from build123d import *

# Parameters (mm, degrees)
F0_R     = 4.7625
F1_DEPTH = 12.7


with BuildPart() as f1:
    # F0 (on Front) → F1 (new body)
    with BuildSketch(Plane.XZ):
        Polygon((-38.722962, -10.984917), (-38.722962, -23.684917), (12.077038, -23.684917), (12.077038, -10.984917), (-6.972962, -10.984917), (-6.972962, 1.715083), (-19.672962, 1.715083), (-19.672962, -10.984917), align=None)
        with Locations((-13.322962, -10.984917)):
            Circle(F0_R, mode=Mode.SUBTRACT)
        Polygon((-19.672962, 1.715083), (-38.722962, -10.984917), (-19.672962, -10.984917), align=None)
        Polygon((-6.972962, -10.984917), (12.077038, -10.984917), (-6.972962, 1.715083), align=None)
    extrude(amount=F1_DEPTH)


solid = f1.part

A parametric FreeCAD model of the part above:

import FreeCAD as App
import Part
import Sketcher
from FreeCAD import Vector
Q = App.Units.Quantity


def add_polygon(sketch, points):
    """Adds a closed chain of lines whose ends are joined by coincident constraints."""
    first, n = sketch.GeometryCount, len(points)
    for a, b in zip(points, points[1:] + points[:1]):
        sketch.addGeometry(Part.LineSegment(App.Vector(*a, 0), App.Vector(*b, 0)), False)
    for i in range(n):
        sketch.addConstraint(Sketcher.Constraint("Coincident", first + i, 2, first + (i + 1) % n, 1))

doc = App.newDocument("Part")
body = doc.addObject("PartDesign::Body", "Body")

sketch1 = body.newObject("Sketcher::SketchObject", "Sketch")
sketch1.AttachmentSupport = (doc.getObject("XZ_Plane"), [""])
sketch1.MapMode = "FlatFace"
add_polygon(sketch1, [(-38.7, -11), (-38.7, -23.7), (12.1, -23.7), (12.1, -11), (-7, 1.7), (-19.7, 1.7)])
sketch1.addGeometry(Part.Circle(Vector(-13.3, -11, 0), Vector(0, 0, 1), 4.8), False)
sketch1.addConstraint([
    Sketcher.Constraint("Vertical", 0),
    Sketcher.Constraint("Horizontal", 1),
    Sketcher.Constraint("Vertical", 2),
    Sketcher.Constraint("Horizontal", 4),
    Sketcher.Constraint("Horizontal", 6, 3, 2, 2),
    Sketcher.Constraint("Horizontal", 2, 2, 5, 2),
    Sketcher.Constraint("Equal", 4, 0),
    Sketcher.Constraint("Equal", 3, 5),
    Sketcher.Constraint("DistanceX", 1, 1, 1, 2, Q("2 in")),
    Sketcher.Constraint("Diameter", 6, Q("0.375 in")),
    Sketcher.Constraint("DistanceX", 4, 2, 4, 1, Q("0.5 in")),
    Sketcher.Constraint("DistanceX", 0, 2, 6, 3, Q("1 in")),
    Sketcher.Constraint("DistanceY", 1, 2, 3, 2, Q("1 in")),
    Sketcher.Constraint("DistanceX", 4, 2, -1, 1, Q("19.672962 mm")),
    Sketcher.Constraint("DistanceY", 6, 3, -1, 1, Q("10.984917 mm")),
])
pad1 = body.newObject("PartDesign::Pad", "Pad")
pad1.Profile = sketch1
pad1.Length = Q("0.5 in")

doc.recompute()
